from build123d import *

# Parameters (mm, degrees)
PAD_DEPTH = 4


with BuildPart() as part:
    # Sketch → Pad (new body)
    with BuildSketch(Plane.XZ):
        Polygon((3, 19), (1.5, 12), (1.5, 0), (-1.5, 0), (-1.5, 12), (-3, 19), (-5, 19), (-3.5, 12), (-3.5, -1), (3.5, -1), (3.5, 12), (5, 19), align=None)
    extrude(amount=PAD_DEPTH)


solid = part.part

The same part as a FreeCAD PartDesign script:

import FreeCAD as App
import Part
import Sketcher
from FreeCAD import Vector

doc = App.newDocument("Part")
body = doc.addObject("PartDesign::Body", "Body")

sketch1 = doc.addObject("Sketcher::SketchObject", "Sketch")
body.addObject(sketch1)
sketch1.AttachmentSupport = (doc.XZ_Plane, [""])
sketch1.MapMode = "FlatFace"
sketch1.addGeometry(Part.LineSegment(Vector(3, 19, 0), Vector(1.5, 12, 0)), False)
sketch1.addGeometry(Part.LineSegment(Vector(1.5, 12, 0), Vector(1.5, 0, 0)), False)
sketch1.addGeometry(Part.LineSegment(Vector(1.5, 0, 0), Vector(-1.5, 0, 0)), False)
sketch1.addGeometry(Part.LineSegment(Vector(-1.5, 0, 0), Vector(-1.5, 12, 0)), False)
sketch1.addGeometry(Part.LineSegment(Vector(-1.5, 12, 0), Vector(-3, 19, 0)), False)
sketch1.addGeometry(Part.LineSegment(Vector(-3, 19, 0), Vector(-5, 19, 0)), False)
sketch1.addGeometry(Part.LineSegment(Vector(-5, 19, 0), Vector(-3.5, 12, 0)), False)
sketch1.addGeometry(Part.LineSegment(Vector(-3.5, 12, 0), Vector(-3.5, -1, 0)), False)
sketch1.addGeometry(Part.LineSegment(Vector(-3.5, -1, 0), Vector(3.5, -1, 0)), False)
sketch1.addGeometry(Part.LineSegment(Vector(3.5, -1, 0), Vector(3.5, 12, 0)), False)
sketch1.addGeometry(Part.LineSegment(Vector(3.5, 12, 0), Vector(5, 19, 0)), False)
sketch1.addGeometry(Part.LineSegment(Vector(5, 19, 0), Vector(3, 19, 0)), False)
sketch1.addConstraint(Sketcher.Constraint("Coincident", 0, 2, 1, 1))
sketch1.addConstraint(Sketcher.Constraint("Coincident", 1, 2, 2, 1))
sketch1.addConstraint(Sketcher.Constraint("Coincident", 2, 2, 3, 1))
sketch1.addConstraint(Sketcher.Constraint("Coincident", 3, 2, 4, 1))
sketch1.addConstraint(Sketcher.Constraint("Coincident", 4, 2, 5, 1))
sketch1.addConstraint(Sketcher.Constraint("Coincident", 5, 2, 6, 1))
sketch1.addConstraint(Sketcher.Constraint("Coincident", 6, 2, 7, 1))
sketch1.addConstraint(Sketcher.Constraint("Coincident", 7, 2, 8, 1))
sketch1.addConstraint(Sketcher.Constraint("Coincident", 8, 2, 9, 1))
sketch1.addConstraint(Sketcher.Constraint("Coincident", 9, 2, 10, 1))
sketch1.addConstraint(Sketcher.Constraint("Coincident", 10, 2, 11, 1))
sketch1.addConstraint(Sketcher.Constraint("Coincident", 11, 2, 0, 1))
sketch1.addConstraint(Sketcher.Constraint("Vertical", 1))
sketch1.addConstraint(Sketcher.Constraint("Horizontal", 2))
sketch1.addConstraint(Sketcher.Constraint("Vertical", 3))
sketch1.addConstraint(Sketcher.Constraint("Horizontal", 5))
sketch1.addConstraint(Sketcher.Constraint("Vertical", 7))
sketch1.addConstraint(Sketcher.Constraint("Horizontal", 8))
sketch1.addConstraint(Sketcher.Constraint("Vertical", 9))
sketch1.addConstraint(Sketcher.Constraint("Horizontal", 11))
sketch1.addConstraint(Sketcher.Constraint("Symmetric", 1, 2, 2, 2, -1, 1))
sketch1.addConstraint(Sketcher.Constraint("Symmetric", 6, 2, 9, 2, -2))
sketch1.addConstraint(Sketcher.Constraint("Symmetric", 5, 2, 10, 2, -2))
sketch1.addConstraint(Sketcher.Constraint("Parallel", 4, 6))
sketch1.addConstraint(Sketcher.Constraint("Parallel", 0, 10))
sketch1.addConstraint(Sketcher.Constraint("Horizontal", 0, 2, 3, 2))
sketch1.addConstraint(Sketcher.Constraint("Horizontal", 3, 2, 6, 2))
sketch1.addConstraint(Sketcher.Constraint("DistanceX", 2, 2, 2, 1, 3.0))
sketch1.addConstraint(Sketcher.Constraint("DistanceX", 5, 2, 5, 1, 2.0))
sketch1.addConstraint(Sketcher.Constraint("DistanceY", 1, 2, 1, 1, 12.0))
sketch1.addConstraint(Sketcher.Constraint("DistanceY", 7, 2, 7, 1, 13.0))
sketch1.addConstraint(Sketcher.Constraint("DistanceX", 4, 2, -1, 1, 3.0))
sketch1.addConstraint(Sketcher.Constraint("DistanceY", -1, 1, 4, 2, 19.0))
pad1 = doc.addObject("PartDesign::Pad", "Pad")
body.addObject(pad1)
pad1.Profile = sketch1
pad1.Length = 4

doc.recompute()
